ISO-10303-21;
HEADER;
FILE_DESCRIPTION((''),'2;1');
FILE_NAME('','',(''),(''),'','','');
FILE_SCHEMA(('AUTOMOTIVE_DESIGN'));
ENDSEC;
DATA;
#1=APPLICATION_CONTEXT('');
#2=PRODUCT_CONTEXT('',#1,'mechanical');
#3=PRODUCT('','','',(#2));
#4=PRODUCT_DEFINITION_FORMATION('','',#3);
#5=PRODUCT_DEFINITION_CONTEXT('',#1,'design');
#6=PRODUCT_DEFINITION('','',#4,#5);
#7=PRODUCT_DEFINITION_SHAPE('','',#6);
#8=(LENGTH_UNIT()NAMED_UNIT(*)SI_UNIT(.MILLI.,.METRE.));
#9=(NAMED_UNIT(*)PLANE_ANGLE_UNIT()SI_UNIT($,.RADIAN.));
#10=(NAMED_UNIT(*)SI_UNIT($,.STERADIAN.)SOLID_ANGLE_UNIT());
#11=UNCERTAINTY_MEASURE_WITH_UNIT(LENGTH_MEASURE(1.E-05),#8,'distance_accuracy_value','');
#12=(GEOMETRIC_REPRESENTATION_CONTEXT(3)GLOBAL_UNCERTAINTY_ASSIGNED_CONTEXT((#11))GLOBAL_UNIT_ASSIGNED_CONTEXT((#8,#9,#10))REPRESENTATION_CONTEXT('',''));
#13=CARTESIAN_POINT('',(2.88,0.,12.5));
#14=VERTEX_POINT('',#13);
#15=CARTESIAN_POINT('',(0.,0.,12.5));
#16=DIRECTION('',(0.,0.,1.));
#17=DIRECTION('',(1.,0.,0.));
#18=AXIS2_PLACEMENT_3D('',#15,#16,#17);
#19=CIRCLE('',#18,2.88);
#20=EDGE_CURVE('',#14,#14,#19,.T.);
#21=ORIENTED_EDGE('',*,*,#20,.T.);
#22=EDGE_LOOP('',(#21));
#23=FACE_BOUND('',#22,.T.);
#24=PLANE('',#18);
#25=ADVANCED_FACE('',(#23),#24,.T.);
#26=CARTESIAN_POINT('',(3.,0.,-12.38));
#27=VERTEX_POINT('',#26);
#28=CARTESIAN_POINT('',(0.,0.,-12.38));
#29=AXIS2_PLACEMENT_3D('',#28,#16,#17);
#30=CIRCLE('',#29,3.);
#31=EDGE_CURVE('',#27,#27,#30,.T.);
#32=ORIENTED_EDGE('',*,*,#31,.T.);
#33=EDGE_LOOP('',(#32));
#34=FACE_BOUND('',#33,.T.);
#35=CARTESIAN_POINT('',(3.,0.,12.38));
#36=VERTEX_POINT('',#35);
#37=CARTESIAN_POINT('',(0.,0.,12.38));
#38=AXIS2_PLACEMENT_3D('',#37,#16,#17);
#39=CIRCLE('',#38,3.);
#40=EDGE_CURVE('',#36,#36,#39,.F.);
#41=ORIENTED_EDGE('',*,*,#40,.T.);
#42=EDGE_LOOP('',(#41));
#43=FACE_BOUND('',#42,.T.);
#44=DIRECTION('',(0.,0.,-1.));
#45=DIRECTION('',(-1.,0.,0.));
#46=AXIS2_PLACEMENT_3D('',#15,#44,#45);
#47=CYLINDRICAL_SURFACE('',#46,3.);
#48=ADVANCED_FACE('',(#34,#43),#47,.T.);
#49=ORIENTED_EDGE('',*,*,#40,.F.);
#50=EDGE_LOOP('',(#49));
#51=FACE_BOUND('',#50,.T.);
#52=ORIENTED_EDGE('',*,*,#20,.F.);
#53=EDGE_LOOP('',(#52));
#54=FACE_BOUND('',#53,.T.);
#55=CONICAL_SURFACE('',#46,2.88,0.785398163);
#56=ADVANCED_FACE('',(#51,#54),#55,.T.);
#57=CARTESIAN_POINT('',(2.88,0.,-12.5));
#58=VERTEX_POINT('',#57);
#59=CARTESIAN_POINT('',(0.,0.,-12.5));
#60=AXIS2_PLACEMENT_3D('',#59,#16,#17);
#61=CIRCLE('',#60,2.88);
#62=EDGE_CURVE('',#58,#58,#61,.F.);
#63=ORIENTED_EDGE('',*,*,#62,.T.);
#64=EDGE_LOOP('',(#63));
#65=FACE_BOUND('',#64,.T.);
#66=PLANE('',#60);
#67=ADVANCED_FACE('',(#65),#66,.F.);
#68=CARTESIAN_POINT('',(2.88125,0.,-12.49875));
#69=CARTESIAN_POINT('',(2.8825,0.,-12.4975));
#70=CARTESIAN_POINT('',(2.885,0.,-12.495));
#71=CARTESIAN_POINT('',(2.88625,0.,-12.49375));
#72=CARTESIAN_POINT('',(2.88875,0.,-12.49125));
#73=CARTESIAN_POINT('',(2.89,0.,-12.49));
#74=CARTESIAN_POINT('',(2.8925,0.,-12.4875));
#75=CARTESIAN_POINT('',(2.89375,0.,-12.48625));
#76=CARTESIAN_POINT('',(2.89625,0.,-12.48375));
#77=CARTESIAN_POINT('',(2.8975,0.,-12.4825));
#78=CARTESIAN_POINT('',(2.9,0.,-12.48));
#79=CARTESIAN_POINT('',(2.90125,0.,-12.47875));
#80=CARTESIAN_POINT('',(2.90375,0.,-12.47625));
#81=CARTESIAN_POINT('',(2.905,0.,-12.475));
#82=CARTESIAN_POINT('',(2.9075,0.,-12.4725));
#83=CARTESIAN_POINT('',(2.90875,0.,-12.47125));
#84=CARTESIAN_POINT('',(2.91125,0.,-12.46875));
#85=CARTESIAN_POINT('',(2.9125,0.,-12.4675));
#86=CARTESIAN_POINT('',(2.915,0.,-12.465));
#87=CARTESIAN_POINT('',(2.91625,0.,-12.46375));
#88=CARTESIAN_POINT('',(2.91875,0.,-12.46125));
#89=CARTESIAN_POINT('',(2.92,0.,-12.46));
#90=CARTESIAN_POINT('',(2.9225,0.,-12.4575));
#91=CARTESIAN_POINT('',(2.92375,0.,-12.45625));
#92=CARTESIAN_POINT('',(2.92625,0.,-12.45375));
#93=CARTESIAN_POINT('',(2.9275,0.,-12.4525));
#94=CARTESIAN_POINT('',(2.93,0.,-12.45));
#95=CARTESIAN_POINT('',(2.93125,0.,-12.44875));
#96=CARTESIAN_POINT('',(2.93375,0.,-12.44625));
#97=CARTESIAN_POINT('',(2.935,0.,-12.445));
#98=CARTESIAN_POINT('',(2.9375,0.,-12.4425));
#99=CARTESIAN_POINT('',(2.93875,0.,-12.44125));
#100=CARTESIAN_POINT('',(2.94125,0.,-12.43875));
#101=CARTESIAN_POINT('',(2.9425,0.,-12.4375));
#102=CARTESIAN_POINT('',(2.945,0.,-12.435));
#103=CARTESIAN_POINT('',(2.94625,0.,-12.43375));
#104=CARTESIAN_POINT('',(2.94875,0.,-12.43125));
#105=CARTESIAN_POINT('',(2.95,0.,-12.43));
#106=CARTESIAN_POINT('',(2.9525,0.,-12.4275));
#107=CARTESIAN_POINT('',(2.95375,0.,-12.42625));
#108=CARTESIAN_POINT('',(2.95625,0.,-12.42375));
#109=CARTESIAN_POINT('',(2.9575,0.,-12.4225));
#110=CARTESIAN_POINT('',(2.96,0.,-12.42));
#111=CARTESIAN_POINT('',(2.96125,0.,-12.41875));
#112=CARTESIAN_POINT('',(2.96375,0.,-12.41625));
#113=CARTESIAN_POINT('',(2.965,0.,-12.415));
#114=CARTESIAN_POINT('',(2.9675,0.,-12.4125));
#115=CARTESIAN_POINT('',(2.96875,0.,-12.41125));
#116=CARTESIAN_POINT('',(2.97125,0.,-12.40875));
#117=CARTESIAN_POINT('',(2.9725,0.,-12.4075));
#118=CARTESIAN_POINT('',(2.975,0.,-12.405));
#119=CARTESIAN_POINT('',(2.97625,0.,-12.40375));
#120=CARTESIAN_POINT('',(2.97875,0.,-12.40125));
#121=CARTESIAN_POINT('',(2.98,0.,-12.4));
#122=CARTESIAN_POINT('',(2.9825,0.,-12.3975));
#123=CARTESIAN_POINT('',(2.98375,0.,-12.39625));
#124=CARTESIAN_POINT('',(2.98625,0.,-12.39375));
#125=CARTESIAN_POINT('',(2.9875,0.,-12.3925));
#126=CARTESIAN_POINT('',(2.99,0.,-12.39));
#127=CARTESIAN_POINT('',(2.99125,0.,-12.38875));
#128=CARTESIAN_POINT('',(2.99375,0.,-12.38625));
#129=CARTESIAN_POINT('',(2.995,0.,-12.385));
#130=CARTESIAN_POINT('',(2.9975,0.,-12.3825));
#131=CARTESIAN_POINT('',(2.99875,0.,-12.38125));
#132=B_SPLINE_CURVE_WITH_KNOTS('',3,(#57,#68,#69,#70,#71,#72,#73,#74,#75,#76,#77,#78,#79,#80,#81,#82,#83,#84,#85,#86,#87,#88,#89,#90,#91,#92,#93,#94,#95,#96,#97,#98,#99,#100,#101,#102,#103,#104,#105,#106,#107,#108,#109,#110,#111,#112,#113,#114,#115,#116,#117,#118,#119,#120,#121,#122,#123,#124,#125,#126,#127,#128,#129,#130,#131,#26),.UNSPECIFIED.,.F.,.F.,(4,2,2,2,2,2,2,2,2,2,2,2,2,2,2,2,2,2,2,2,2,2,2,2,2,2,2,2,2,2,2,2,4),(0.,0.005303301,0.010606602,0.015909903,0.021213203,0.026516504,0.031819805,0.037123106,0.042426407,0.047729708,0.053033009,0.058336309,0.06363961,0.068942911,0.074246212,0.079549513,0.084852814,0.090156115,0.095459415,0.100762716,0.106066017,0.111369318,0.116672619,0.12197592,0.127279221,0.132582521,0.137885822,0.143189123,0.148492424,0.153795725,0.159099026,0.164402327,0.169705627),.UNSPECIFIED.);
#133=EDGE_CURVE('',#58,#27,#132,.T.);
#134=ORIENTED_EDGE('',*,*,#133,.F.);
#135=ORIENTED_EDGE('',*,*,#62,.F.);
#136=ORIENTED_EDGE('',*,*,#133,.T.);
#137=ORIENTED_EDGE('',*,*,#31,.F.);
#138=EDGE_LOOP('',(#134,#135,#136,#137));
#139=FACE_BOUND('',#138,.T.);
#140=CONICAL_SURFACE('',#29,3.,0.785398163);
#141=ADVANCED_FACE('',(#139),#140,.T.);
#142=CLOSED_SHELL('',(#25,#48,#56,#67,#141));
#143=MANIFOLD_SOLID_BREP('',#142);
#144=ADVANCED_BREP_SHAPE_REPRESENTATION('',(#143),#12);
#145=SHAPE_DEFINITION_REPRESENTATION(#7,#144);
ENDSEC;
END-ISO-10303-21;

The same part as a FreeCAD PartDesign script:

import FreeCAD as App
import Part
import Sketcher

V = App.Vector


def edges_at(feature, points):
    """Names of the edges that pass closest to the given points."""
    edges = feature.Shape.Edges
    near = lambda p: min(range(len(edges)), key=lambda i: edges[i].distToShape(Part.Vertex(*p))[0])
    return sorted({f"Edge{near(p) + 1}" for p in points})

doc = App.newDocument("Part")
body = doc.addObject("PartDesign::Body", "Body")

sketch1 = body.newObject("Sketcher::SketchObject", "Sketch")
sketch1.AttachmentSupport = (doc.getObject("XY_Plane"), [""])
sketch1.MapMode = "FlatFace"
sketch1.addGeometry(Part.Circle(V(0, 0, 0), V(0, 0, 1), 3), False)
sketch1.addConstraint([
    Sketcher.Constraint("Coincident", 0, 3, -1, 1),
    Sketcher.Constraint("Diameter", 0, 6.0),
])
pad1 = body.newObject("PartDesign::Pad", "Pad")
pad1.Profile = sketch1
pad1.Type = "TwoLengths"
pad1.Length = 12.5
pad1.Length2 = 12.5
doc.recompute()

chamfer = body.newObject("PartDesign::Chamfer", "Chamfer")
chamfer.Base = (pad1, edges_at(pad1, [(-3, 0, -12.5), (-3, 0, 12.5)]))
chamfer.Size = 0.12

doc.recompute()
